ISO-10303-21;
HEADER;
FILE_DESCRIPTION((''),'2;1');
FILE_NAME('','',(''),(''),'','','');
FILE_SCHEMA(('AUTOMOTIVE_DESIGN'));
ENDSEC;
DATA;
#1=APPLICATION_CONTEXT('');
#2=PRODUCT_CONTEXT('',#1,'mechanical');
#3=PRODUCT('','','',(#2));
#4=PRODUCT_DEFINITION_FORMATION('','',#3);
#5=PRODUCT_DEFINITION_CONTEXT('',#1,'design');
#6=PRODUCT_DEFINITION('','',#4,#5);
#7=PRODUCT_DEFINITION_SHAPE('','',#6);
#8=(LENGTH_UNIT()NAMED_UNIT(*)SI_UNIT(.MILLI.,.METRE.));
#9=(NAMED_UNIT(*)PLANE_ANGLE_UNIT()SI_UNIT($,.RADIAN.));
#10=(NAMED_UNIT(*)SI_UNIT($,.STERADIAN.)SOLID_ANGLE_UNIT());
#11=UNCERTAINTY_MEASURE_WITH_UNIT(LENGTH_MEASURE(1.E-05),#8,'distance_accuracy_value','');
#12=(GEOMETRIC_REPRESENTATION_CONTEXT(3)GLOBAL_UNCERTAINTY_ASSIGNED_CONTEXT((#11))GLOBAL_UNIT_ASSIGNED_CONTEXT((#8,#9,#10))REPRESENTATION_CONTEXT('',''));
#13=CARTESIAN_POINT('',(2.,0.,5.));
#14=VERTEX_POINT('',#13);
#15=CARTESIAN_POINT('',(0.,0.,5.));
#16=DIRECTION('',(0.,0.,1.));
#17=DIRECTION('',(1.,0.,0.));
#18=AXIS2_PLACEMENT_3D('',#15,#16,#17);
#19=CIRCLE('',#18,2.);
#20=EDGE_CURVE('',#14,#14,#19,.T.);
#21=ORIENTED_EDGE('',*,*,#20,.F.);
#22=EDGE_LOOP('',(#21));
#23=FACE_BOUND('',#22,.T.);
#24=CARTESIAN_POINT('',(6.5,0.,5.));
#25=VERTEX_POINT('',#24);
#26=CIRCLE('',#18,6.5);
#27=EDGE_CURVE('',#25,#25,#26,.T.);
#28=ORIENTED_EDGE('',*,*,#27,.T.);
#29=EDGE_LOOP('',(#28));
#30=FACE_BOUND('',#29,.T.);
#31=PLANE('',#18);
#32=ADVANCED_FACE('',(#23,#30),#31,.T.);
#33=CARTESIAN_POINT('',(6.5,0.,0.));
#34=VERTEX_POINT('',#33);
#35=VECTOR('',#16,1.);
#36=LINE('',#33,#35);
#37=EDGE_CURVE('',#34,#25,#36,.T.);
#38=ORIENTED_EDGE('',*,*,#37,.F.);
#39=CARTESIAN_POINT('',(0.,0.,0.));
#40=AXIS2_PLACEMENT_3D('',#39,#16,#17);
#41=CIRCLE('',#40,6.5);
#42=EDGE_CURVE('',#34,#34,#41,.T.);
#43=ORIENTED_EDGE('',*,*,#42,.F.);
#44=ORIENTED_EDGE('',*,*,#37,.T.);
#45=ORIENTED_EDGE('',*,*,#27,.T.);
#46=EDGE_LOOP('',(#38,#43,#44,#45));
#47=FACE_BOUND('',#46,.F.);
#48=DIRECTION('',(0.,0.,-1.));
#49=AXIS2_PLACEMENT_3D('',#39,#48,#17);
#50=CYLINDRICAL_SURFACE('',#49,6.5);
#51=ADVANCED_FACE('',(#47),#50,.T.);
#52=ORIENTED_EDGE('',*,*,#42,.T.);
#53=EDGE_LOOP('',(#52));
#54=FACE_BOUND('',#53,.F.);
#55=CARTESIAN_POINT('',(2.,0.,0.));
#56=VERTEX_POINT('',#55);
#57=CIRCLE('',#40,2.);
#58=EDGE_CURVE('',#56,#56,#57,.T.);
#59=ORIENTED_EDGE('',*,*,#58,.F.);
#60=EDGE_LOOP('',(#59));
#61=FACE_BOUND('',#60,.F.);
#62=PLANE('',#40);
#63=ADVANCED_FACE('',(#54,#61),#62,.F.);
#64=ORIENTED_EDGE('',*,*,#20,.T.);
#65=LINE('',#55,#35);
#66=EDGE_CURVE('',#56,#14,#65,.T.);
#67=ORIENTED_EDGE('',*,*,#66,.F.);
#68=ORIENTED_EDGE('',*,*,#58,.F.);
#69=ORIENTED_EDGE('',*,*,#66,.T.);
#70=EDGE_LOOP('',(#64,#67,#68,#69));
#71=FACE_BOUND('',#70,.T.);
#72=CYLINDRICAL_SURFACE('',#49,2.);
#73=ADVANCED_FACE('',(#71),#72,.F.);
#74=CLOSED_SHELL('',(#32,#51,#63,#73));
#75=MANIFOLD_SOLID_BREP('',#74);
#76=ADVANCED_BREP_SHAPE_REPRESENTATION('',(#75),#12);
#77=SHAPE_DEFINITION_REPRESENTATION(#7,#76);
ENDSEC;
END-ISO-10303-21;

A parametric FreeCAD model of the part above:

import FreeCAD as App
import Part
import Sketcher

V = App.Vector
Q = App.Units.Quantity

doc = App.newDocument("Part")
body = doc.addObject("PartDesign::Body", "Body")

sketch1 = doc.addObject("Sketcher::SketchObject", "Sketch")
body.addObject(sketch1)
sketch1.AttachmentSupport = (doc.XY_Plane, [""])
sketch1.MapMode = "FlatFace"
sketch1.addGeometry(Part.Circle(V(0, 0, 0), V(0, 0, 1), 6.5), False)
sketch1.addGeometry(Part.Circle(V(0, 0, 0), V(0, 0, 1), 2), False)
sketch1.addConstraint(Sketcher.Constraint("Coincident", 0, 3, -1, 1))
sketch1.addConstraint(Sketcher.Constraint("Coincident", 1, 3, -1, 1))
sketch1.addConstraint(Sketcher.Constraint("Diameter", 0, Q("13 mm")))
sketch1.addConstraint(Sketcher.Constraint("Diameter", 1, Q("4 mm")))
pad1 = doc.addObject("PartDesign::Pad", "Pad")
body.addObject(pad1)
pad1.Profile = sketch1
pad1.Length = 5

doc.recompute()
